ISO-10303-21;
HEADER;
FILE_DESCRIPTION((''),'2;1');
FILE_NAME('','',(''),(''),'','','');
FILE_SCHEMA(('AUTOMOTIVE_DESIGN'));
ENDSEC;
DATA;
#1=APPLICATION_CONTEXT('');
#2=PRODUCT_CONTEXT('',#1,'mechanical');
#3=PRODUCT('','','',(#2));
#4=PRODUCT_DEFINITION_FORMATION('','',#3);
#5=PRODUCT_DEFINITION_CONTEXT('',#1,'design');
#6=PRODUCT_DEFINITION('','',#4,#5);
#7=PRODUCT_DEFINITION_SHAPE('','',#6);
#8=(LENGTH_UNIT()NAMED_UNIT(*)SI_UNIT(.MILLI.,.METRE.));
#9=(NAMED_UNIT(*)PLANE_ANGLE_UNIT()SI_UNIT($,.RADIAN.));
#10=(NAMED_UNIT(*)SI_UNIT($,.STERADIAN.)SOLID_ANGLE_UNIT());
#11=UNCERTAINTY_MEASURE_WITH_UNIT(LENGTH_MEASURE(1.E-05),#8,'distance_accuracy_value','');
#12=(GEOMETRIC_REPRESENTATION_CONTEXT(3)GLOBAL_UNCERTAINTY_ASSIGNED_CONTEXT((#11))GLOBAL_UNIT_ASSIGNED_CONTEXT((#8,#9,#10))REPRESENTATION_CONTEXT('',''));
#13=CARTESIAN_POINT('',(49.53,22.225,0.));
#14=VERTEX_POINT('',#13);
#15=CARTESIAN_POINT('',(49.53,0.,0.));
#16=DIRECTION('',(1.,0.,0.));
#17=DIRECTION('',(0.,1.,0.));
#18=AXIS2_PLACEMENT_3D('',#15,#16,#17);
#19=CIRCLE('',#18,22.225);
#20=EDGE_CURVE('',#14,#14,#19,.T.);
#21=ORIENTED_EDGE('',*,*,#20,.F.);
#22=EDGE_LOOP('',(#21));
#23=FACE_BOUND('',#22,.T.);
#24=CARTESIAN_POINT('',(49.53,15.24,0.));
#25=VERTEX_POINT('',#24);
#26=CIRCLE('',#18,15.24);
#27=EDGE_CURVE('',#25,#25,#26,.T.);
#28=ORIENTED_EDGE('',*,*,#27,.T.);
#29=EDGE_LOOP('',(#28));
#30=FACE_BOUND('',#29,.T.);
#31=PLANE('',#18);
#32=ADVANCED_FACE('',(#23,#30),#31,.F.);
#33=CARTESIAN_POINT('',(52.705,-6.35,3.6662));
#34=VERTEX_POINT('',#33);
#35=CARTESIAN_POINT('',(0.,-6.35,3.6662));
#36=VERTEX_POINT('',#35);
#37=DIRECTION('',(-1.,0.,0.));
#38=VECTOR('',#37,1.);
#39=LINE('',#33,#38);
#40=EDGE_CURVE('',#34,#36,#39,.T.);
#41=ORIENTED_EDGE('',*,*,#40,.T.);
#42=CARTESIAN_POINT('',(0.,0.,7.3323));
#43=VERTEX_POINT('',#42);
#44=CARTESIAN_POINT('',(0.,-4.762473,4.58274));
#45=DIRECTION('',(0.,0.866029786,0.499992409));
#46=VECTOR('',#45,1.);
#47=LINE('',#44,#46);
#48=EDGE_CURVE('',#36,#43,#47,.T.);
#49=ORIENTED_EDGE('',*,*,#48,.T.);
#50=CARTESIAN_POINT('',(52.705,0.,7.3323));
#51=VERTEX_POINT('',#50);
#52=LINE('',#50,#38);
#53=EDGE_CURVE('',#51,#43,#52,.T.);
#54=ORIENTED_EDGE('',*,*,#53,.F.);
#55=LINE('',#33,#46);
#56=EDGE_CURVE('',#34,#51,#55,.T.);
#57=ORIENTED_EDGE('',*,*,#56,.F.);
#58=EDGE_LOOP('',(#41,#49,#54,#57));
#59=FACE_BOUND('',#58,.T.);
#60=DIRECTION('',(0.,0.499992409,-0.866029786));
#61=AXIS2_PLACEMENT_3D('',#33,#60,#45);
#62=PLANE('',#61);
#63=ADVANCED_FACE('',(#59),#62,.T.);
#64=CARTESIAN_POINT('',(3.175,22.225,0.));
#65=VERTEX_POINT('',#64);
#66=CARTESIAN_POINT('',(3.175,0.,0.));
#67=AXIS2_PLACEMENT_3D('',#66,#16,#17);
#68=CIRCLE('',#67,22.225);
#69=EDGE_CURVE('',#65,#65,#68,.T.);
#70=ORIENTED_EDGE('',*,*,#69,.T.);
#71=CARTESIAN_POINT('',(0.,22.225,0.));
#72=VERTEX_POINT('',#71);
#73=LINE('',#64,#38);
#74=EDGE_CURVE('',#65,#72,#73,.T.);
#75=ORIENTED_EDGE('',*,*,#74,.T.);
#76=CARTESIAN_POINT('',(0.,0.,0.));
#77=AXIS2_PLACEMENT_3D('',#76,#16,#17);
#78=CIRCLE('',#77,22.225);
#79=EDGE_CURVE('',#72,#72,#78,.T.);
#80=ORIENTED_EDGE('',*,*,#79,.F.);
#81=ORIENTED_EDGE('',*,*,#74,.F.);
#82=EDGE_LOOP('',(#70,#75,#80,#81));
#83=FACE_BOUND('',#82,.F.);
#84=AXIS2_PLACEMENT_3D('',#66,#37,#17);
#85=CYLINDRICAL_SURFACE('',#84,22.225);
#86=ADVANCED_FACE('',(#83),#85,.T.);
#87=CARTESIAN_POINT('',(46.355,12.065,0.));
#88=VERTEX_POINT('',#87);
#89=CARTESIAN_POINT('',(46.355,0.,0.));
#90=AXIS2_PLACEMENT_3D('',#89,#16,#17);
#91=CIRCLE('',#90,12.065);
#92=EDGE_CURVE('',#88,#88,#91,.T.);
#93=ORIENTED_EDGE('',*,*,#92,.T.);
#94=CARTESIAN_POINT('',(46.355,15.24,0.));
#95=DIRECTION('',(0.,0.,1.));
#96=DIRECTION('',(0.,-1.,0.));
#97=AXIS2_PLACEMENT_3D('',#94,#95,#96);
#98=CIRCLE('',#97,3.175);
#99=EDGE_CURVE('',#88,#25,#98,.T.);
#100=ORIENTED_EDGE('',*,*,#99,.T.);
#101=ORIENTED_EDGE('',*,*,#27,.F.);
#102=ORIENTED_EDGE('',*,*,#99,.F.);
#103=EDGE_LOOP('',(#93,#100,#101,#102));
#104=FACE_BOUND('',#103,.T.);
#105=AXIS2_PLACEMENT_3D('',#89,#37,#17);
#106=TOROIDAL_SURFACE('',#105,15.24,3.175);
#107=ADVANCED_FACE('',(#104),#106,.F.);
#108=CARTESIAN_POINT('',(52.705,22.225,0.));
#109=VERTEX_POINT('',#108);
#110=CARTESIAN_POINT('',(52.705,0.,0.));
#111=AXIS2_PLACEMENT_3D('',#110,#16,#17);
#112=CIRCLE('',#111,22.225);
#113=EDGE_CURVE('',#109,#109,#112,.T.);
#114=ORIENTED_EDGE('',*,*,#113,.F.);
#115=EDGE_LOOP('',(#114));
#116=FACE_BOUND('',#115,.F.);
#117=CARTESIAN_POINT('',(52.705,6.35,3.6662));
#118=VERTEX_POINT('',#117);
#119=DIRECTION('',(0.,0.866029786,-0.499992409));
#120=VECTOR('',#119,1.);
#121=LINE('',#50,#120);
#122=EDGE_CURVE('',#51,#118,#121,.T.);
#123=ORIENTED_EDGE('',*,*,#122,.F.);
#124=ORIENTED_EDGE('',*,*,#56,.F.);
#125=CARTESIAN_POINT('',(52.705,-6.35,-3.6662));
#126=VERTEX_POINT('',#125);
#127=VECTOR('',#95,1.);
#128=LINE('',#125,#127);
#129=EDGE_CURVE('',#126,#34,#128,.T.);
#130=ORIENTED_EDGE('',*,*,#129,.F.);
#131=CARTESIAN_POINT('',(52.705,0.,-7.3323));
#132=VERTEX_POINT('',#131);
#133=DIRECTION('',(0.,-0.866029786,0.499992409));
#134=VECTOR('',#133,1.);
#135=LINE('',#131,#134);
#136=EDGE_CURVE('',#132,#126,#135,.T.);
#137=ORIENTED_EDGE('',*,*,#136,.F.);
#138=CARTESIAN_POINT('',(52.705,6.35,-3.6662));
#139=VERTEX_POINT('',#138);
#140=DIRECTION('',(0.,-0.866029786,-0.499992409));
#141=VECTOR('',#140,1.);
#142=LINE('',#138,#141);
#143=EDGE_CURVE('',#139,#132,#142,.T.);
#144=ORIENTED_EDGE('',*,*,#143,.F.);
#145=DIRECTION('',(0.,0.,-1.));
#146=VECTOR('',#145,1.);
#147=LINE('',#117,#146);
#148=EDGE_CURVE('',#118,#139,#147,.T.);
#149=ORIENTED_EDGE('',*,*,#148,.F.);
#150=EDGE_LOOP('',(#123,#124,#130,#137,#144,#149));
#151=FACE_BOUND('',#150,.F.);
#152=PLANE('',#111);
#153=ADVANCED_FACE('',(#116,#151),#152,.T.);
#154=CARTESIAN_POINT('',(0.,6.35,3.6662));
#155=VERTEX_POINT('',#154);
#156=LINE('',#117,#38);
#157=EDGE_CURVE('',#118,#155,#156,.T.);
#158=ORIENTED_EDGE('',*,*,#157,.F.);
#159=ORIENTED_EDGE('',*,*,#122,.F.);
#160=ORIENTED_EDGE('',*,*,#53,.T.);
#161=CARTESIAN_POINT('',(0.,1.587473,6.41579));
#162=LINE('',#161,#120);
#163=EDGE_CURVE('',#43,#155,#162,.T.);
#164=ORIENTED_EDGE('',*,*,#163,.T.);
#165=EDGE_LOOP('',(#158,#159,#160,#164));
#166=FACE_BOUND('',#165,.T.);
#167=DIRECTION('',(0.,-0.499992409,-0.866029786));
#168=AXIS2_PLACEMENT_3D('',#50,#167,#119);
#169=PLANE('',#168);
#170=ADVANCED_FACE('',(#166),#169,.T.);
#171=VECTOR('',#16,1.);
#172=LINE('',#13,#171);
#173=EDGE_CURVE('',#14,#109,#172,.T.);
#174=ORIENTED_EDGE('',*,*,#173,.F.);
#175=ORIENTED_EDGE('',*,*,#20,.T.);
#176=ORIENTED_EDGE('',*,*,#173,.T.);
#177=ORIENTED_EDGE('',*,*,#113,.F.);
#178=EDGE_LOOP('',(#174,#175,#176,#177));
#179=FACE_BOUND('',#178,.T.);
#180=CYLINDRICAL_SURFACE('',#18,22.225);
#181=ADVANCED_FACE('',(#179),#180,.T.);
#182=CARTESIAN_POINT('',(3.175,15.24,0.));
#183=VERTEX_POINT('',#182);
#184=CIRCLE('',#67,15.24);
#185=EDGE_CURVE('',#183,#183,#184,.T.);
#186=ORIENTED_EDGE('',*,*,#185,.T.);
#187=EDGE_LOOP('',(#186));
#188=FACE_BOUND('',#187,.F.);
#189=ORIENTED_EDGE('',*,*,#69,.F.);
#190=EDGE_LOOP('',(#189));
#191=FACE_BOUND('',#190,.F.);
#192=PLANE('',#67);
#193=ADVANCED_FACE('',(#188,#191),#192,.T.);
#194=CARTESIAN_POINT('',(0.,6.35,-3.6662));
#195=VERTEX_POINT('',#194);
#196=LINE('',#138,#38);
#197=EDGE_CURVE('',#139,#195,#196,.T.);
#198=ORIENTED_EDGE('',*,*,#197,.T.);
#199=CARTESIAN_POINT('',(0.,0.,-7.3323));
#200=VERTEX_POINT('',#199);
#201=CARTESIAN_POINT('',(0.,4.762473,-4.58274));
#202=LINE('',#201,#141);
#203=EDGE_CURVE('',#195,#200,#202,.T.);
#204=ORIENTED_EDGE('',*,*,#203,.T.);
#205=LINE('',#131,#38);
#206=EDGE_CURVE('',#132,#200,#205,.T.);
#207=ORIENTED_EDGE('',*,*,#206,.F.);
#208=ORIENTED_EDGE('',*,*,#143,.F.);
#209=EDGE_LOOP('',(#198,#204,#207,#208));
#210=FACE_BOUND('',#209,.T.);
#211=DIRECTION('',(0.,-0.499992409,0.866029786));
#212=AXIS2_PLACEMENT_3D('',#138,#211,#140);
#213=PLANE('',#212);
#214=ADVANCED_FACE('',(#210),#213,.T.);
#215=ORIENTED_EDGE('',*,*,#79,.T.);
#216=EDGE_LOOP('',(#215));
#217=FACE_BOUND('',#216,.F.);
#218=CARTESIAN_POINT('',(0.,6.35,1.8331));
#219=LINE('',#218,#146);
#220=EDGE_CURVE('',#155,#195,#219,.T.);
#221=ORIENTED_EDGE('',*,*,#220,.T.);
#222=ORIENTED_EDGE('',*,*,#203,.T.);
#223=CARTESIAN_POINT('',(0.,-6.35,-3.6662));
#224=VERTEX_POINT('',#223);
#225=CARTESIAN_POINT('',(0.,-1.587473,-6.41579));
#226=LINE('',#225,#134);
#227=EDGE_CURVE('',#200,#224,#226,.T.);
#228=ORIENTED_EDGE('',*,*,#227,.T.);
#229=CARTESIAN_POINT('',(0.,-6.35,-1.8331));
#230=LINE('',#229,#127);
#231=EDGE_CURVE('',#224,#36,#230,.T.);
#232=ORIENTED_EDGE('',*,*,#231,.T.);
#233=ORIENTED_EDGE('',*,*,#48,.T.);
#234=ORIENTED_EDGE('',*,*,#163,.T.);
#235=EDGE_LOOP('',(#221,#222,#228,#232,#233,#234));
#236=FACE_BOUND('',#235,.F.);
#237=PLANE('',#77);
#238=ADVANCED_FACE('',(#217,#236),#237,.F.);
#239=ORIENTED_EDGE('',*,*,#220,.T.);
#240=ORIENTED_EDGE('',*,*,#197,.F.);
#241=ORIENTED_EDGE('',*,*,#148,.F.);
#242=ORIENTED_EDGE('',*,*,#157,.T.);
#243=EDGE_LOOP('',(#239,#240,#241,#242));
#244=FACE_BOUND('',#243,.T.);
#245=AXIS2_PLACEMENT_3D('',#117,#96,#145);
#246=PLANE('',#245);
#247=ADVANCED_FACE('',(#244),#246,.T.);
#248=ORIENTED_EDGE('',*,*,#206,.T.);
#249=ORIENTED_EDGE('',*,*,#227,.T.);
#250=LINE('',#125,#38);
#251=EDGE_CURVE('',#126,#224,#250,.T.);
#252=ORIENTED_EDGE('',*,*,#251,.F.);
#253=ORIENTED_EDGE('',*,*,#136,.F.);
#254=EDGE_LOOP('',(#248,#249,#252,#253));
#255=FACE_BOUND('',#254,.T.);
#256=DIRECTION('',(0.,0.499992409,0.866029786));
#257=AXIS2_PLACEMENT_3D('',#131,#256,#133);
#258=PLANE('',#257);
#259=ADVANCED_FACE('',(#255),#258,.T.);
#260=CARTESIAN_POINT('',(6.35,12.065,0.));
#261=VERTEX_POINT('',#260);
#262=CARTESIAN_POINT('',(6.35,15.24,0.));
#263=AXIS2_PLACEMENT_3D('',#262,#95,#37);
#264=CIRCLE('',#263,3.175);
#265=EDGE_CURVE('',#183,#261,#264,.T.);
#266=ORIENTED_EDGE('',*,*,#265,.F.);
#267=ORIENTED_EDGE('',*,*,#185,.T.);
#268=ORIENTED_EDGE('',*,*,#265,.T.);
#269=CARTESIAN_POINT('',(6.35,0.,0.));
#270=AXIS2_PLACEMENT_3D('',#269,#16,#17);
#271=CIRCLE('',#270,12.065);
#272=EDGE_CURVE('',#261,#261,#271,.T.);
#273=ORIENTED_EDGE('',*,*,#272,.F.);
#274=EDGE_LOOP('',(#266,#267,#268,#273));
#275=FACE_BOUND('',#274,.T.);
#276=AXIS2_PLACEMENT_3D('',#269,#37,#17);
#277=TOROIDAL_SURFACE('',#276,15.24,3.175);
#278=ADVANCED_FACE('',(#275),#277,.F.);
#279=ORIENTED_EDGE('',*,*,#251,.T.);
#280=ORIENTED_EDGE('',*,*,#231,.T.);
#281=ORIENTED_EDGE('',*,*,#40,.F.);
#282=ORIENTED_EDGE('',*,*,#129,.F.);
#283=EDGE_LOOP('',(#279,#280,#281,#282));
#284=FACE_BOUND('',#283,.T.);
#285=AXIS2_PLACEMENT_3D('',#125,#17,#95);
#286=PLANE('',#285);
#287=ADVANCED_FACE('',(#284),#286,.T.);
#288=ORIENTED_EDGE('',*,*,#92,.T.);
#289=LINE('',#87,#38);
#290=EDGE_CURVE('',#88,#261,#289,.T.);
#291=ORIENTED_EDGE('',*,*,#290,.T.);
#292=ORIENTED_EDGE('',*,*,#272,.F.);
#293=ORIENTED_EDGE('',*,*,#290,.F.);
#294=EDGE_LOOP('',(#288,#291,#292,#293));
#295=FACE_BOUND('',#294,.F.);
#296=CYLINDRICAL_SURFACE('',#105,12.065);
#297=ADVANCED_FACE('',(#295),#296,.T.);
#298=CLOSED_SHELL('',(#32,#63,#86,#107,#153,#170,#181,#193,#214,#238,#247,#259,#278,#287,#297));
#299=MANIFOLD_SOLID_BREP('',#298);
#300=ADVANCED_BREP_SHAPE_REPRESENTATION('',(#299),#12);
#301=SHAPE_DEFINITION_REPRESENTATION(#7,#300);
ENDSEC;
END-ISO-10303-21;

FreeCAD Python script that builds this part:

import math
import FreeCAD as App
import Part
import Sketcher

V = App.Vector
Q = App.Units.Quantity

doc = App.newDocument("Part")
body = doc.addObject("PartDesign::Body", "Body")

# Sketch on XY plane
sketch1 = body.newObject("Sketcher::SketchObject", "Sketch")
sketch1.AttachmentSupport = (doc.getObject("XY_Plane"), [""])
sketch1.MapMode = "FlatFace"
sketch1.addGeometry([
    Part.LineSegment(V(0, 22.2, 0), V(0, 0, 0)),  # 0
    Part.LineSegment(V(0, 0, 0), V(52.7, 0, 0)),  # 1
    Part.LineSegment(V(52.7, 0, 0), V(52.7, 22.2, 0)),  # 2
    Part.LineSegment(V(52.7, 22.2, 0), V(49.5, 22.2, 0)),  # 3
    Part.LineSegment(V(49.5, 22.2, 0), V(49.5, 15.2, 0)),  # 4
    Part.ArcOfCircle(Part.Circle(V(46.4, 15.2, 0), V(0, 0, 1), 3.2), math.radians(-90), math.radians(0)),  # 5
    Part.LineSegment(V(46.4, 12.1, 0), V(6.3, 12.1, 0)),  # 6
    Part.ArcOfCircle(Part.Circle(V(6.3, 15.2, 0), V(0, 0, 1), 3.2), math.radians(180), math.radians(270)),  # 7
    Part.LineSegment(V(3.2, 15.2, 0), V(3.2, 22.2, 0)),  # 8
    Part.LineSegment(V(3.2, 22.2, 0), V(0, 22.2, 0)),  # 9
], False)
sketch1.addConstraint([
    Sketcher.Constraint("Coincident", 0, 2, 1, 1),
    Sketcher.Constraint("Coincident", 1, 2, 2, 1),
    Sketcher.Constraint("Coincident", 2, 2, 3, 1),
    Sketcher.Constraint("Coincident", 3, 2, 4, 1),
    Sketcher.Constraint("Tangent", 4, 2, 5, 2),
    Sketcher.Constraint("Tangent", 5, 1, 6, 1),
    Sketcher.Constraint("Tangent", 6, 2, 7, 2),
    Sketcher.Constraint("Tangent", 7, 1, 8, 1),
    Sketcher.Constraint("Coincident", 8, 2, 9, 1),
    Sketcher.Constraint("Coincident", 9, 2, 0, 1),
    Sketcher.Constraint("Vertical", 0),
    Sketcher.Constraint("Horizontal", 1),
    Sketcher.Constraint("Vertical", 2),
    Sketcher.Constraint("Horizontal", 3),
    Sketcher.Constraint("Vertical", 4),
    Sketcher.Constraint("Horizontal", 6),
    Sketcher.Constraint("Vertical", 8),
    Sketcher.Constraint("Horizontal", 9),
    Sketcher.Constraint("Coincident", 0, 2, -1, 1),
    Sketcher.Constraint("Equal", 5, 7),
    Sketcher.Constraint("Horizontal", 3, 2, 8, 2),
    Sketcher.Constraint("Equal", 3, 9),
    Sketcher.Constraint("Radius", 5, Q("0.125 in")),
    Sketcher.Constraint("DistanceX", 1, 1, 1, 2, Q("2.075 in")),
    Sketcher.Constraint("DistanceX", 3, 2, 3, 1, Q("0.125 in")),
    Sketcher.Constraint("DistanceY", 0, 2, 0, 1, Q("0.875 in")),
    Sketcher.Constraint("DistanceY", -1, 1, 5, 1, Q("0.475 in")),
])
revolution = body.newObject("PartDesign::Revolution", "Revolution")
revolution.Profile = sketch1
revolution.ReferenceAxis = (sketch1, ["H_Axis"])
revolution.Angle = 360

# Sketch on YZ plane
sketch2 = body.newObject("Sketcher::SketchObject", "Sketch001")
sketch2.AttachmentSupport = (doc.getObject("YZ_Plane"), [""])
sketch2.MapMode = "FlatFace"
sketch2.AttachmentOffset = App.Placement(V(0, 0, 2.075 * 25.4), App.Rotation())
sketch2.addGeometry([
    Part.LineSegment(V(-6, -4, 0), V(0, -7, 0)),  # 0
    Part.LineSegment(V(0, -7, 0), V(6, -4, 0)),  # 1
    Part.LineSegment(V(6, -4, 0), V(6, 4, 0)),  # 2
    Part.LineSegment(V(6, 4, 0), V(0, 7, 0)),  # 3
    Part.LineSegment(V(0, 7, 0), V(-6, 4, 0)),  # 4
    Part.LineSegment(V(-6, 4, 0), V(-6, -4, 0)),  # 5
], False)
sketch2.addConstraint([
    Sketcher.Constraint("Coincident", 0, 2, 1, 1),
    Sketcher.Constraint("Coincident", 1, 2, 2, 1),
    Sketcher.Constraint("Coincident", 2, 2, 3, 1),
    Sketcher.Constraint("Coincident", 3, 2, 4, 1),
    Sketcher.Constraint("Coincident", 4, 2, 5, 1),
    Sketcher.Constraint("Coincident", 5, 2, 0, 1),
    Sketcher.Constraint("Vertical", 2),
    Sketcher.Constraint("Vertical", 5),
    Sketcher.Constraint("Symmetric", 0, 2, 3, 2, -1, 1),
    Sketcher.Constraint("Symmetric", 1, 2, 4, 2, -1, 1),
    Sketcher.Constraint("PointOnObject", 0, 2, -2),
    Sketcher.Constraint("Parallel", 0, 3),
    Sketcher.Constraint("Horizontal", 2, 2, 4, 2),
    Sketcher.Constraint("DistanceX", 4, 2, 2, 2, Q("0.5 in")),
    Sketcher.Constraint("Angle", 0, Q("-29.9995 deg")),
    Sketcher.Constraint("DistanceY", 0, 2, 2, 2, Q("0.433 in")),
])
pocket1 = body.newObject("PartDesign::Pocket", "Pocket")
pocket1.Profile = sketch2
pocket1.Type = "ThroughAll"

doc.recompute()
